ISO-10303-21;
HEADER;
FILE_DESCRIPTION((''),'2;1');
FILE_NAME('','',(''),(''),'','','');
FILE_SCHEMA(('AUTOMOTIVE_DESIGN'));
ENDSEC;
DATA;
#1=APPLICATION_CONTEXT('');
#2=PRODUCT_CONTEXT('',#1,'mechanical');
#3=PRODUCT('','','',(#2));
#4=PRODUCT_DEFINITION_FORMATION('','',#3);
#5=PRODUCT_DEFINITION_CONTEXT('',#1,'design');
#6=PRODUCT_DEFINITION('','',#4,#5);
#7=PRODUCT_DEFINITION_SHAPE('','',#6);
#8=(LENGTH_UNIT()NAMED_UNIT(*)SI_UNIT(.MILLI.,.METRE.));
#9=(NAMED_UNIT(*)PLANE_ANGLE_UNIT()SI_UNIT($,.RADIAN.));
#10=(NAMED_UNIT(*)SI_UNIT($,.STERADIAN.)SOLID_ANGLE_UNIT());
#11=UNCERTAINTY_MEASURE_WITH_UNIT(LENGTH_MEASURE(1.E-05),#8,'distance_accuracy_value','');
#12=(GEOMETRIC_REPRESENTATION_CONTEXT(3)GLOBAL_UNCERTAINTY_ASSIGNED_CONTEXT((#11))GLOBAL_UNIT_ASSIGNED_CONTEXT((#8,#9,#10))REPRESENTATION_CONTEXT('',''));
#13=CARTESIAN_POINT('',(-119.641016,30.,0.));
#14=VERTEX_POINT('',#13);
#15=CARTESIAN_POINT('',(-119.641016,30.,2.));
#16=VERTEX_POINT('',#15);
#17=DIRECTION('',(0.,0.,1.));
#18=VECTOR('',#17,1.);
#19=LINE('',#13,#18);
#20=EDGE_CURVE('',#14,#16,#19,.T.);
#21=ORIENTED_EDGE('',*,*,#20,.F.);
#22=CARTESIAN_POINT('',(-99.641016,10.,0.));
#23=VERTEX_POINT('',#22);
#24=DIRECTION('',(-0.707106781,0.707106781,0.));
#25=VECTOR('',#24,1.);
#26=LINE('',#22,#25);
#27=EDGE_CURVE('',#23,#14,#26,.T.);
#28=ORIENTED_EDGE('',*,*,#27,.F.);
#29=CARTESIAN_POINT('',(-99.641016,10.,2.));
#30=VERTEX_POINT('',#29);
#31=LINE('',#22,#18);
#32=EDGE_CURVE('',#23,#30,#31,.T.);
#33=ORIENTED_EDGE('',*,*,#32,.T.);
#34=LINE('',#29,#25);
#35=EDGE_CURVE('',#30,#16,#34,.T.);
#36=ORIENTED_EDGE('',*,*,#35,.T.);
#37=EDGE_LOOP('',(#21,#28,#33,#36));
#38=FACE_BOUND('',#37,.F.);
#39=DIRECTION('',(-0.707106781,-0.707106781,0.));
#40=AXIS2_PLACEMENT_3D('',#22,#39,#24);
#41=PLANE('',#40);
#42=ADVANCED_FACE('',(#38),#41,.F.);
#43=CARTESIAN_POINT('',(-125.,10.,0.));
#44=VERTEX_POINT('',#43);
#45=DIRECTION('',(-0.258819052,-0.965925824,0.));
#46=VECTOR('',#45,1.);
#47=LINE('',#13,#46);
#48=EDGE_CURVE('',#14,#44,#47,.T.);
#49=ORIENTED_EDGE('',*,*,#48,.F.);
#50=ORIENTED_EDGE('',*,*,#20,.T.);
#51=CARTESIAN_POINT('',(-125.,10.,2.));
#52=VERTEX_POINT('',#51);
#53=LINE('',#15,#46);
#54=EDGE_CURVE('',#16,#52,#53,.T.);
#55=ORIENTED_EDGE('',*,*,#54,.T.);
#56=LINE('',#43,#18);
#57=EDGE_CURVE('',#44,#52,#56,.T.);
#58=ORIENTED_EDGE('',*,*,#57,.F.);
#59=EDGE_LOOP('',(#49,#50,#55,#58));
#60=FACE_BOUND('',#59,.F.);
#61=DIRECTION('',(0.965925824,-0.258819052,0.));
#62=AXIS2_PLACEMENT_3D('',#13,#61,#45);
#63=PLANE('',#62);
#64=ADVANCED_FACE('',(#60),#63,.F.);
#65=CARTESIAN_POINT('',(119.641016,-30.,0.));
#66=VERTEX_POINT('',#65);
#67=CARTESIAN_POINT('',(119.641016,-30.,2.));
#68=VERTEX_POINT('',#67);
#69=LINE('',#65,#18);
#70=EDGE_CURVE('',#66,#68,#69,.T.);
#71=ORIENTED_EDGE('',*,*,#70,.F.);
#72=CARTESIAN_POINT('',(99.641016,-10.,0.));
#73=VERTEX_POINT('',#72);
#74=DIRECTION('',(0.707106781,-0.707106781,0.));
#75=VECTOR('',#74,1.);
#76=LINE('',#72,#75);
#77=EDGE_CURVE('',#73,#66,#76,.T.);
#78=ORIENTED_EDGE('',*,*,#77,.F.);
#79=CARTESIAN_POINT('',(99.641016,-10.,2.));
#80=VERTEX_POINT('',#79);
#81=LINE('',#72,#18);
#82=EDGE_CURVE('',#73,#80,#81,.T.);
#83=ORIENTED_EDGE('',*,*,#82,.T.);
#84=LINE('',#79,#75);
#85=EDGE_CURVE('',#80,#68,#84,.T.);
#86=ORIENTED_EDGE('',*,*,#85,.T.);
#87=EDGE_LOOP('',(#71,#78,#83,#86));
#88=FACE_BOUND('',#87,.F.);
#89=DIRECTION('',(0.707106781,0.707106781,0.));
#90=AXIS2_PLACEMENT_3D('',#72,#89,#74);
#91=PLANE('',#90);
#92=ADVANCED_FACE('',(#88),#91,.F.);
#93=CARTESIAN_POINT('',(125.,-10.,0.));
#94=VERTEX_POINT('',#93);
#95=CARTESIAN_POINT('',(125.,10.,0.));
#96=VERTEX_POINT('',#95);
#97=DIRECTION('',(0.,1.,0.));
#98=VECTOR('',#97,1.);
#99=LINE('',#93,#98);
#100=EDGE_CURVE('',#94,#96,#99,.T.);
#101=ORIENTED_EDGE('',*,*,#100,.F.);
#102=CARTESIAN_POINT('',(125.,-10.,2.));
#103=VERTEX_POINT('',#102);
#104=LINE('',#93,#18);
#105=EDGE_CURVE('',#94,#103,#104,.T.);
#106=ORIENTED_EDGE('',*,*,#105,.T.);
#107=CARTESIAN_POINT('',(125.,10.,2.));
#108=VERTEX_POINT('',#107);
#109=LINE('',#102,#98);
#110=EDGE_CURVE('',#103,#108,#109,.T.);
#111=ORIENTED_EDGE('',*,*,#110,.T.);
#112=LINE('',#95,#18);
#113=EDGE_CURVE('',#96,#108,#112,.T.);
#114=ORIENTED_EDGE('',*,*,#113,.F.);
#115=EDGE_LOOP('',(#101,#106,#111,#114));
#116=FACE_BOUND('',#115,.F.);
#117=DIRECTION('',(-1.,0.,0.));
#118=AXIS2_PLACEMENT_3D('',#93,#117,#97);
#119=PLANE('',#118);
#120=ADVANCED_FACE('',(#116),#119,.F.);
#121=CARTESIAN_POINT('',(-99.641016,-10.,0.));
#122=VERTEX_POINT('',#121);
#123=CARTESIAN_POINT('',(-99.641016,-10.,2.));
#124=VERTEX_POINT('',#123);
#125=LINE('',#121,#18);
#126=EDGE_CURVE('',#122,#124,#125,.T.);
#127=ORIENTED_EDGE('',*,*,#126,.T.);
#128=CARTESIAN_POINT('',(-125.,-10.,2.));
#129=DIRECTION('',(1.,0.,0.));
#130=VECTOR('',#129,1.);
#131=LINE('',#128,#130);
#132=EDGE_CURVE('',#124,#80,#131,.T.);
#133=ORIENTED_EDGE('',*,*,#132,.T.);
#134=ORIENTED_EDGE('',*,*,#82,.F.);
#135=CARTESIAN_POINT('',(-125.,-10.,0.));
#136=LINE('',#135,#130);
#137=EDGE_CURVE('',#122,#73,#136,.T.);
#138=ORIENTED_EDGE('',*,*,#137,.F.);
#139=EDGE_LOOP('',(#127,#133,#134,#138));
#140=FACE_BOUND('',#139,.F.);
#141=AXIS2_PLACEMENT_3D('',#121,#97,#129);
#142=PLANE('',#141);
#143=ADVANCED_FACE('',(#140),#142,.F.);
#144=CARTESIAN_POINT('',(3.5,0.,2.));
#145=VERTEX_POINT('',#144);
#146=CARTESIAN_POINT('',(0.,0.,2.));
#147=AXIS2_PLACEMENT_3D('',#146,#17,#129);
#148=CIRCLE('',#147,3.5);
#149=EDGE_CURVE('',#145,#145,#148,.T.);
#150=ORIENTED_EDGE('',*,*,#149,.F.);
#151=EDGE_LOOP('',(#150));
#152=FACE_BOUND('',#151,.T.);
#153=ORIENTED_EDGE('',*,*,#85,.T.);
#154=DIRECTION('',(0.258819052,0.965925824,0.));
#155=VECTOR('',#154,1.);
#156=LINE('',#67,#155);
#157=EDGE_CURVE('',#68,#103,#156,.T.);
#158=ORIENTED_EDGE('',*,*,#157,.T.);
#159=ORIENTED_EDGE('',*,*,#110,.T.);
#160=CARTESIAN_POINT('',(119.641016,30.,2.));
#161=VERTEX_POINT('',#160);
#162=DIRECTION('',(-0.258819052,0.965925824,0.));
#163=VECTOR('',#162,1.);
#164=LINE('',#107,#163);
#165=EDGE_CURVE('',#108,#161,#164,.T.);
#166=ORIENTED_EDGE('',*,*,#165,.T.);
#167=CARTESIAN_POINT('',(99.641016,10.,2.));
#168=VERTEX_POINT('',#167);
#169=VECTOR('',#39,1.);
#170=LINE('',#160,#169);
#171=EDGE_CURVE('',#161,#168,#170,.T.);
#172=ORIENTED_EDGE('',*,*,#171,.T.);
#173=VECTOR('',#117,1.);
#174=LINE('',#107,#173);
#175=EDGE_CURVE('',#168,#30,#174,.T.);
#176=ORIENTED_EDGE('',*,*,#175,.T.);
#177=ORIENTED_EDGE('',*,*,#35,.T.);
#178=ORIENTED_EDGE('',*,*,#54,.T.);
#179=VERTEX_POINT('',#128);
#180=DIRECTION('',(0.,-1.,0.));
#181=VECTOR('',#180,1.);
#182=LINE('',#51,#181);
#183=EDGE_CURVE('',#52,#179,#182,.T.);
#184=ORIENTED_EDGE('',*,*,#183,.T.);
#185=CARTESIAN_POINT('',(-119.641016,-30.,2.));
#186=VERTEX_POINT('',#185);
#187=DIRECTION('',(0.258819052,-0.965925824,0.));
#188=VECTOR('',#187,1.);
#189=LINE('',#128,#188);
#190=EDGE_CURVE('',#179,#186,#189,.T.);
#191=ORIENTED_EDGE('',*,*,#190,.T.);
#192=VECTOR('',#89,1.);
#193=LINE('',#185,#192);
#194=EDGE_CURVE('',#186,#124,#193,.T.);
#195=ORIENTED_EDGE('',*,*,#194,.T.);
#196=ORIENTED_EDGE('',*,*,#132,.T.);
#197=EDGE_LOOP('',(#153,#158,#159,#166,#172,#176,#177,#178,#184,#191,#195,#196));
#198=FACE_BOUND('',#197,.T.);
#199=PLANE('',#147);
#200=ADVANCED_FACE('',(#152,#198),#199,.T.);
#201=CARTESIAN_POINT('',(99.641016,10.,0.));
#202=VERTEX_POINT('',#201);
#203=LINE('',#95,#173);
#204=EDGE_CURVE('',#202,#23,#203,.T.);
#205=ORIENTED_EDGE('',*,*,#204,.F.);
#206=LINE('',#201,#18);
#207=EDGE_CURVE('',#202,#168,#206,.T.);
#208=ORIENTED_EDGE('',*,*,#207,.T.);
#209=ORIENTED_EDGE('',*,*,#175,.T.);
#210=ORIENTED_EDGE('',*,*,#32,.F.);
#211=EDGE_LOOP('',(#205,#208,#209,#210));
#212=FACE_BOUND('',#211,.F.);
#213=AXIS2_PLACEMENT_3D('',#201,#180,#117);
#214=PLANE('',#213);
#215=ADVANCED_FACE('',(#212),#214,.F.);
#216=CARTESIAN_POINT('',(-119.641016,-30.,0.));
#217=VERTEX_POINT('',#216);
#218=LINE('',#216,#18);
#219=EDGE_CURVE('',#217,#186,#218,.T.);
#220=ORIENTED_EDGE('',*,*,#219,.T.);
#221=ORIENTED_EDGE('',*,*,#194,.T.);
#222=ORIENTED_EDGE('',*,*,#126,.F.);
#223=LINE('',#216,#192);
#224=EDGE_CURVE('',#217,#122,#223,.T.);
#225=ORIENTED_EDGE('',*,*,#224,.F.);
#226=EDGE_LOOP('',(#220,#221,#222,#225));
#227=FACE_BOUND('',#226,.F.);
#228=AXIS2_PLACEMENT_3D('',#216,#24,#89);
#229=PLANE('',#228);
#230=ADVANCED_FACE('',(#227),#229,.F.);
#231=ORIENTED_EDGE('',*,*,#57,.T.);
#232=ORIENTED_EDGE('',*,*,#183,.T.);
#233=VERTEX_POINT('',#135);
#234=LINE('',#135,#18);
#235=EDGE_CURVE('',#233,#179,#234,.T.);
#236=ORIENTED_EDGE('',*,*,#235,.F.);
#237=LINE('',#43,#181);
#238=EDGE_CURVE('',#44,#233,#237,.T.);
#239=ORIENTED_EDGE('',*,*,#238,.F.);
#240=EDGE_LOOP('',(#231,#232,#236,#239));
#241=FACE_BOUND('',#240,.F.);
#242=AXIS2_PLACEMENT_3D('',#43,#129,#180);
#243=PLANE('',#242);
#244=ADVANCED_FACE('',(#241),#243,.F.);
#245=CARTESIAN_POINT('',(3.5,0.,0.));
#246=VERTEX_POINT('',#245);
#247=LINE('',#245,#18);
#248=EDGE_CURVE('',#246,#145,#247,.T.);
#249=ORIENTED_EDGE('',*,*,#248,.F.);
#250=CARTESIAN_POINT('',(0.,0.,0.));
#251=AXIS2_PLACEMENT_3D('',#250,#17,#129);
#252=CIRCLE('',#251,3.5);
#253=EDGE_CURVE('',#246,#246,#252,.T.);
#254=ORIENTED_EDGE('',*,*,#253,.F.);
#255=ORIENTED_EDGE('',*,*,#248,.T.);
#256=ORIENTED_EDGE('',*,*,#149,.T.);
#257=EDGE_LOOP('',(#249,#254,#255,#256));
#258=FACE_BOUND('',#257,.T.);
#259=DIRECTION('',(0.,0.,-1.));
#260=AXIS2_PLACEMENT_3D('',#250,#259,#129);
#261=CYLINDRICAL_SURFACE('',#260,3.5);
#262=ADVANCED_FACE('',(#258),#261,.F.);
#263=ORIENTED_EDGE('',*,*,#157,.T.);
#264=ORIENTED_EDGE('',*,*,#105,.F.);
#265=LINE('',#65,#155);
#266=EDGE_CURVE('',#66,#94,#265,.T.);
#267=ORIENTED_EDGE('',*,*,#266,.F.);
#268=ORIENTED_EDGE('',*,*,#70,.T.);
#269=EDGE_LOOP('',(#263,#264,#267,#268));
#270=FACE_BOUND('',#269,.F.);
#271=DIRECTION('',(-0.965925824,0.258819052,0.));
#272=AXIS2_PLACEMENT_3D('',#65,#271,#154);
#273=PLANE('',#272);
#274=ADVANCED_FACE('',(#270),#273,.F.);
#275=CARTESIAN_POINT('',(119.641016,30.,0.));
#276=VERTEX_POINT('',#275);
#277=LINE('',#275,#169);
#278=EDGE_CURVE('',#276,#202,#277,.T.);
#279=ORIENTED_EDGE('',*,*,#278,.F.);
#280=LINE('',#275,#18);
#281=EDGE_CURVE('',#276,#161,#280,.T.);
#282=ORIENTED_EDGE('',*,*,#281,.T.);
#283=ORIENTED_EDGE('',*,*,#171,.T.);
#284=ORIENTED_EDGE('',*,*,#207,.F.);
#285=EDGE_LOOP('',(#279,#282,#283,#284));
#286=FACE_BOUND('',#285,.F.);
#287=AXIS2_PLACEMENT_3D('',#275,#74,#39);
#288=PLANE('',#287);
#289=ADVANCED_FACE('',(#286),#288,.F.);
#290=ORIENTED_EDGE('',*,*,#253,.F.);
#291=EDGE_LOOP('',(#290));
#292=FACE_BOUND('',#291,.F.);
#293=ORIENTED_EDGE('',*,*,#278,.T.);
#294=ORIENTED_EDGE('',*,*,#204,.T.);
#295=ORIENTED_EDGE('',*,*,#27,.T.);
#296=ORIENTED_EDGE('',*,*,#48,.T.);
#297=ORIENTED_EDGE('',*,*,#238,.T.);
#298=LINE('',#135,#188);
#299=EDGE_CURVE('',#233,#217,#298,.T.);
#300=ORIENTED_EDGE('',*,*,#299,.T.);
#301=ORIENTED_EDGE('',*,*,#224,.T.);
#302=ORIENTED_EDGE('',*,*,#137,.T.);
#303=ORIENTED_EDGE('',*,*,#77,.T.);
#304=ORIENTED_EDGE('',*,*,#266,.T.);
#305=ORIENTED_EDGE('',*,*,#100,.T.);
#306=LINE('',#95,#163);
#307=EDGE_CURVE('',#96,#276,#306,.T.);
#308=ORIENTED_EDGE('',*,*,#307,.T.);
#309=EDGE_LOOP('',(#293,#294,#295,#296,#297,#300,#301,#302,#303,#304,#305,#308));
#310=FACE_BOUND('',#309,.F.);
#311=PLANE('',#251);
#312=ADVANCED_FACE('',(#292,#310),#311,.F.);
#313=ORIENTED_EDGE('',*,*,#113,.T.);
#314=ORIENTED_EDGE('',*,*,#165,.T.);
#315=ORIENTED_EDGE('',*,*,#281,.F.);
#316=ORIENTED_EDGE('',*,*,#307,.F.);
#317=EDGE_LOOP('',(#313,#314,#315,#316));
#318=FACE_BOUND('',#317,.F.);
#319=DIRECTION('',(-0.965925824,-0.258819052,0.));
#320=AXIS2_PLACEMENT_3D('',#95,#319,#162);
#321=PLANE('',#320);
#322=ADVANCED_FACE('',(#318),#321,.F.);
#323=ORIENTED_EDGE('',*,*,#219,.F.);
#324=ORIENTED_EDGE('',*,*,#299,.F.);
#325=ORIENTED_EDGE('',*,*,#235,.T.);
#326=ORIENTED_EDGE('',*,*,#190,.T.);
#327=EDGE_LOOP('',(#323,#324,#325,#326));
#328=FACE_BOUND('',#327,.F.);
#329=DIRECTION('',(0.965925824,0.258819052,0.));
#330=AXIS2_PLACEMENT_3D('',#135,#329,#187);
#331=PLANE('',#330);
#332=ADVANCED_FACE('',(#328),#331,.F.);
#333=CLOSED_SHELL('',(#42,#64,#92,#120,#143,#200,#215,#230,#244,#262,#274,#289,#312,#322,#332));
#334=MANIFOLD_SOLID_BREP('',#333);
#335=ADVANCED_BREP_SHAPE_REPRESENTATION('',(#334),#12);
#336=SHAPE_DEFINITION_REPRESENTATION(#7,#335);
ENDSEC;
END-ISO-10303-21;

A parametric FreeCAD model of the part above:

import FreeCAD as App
import Part
import Sketcher
from FreeCAD import Vector
Q = App.Units.Quantity

doc = App.newDocument("Part")
body = doc.addObject("PartDesign::Body", "Body")

sketch1 = body.newObject("Sketcher::SketchObject", "Sketch")
sketch1.AttachmentSupport = (doc.getObject("XY_Plane"), [""])
sketch1.MapMode = "FlatFace"
sketch1.addGeometry([
    Part.LineSegment(Vector(125, -10, 0), Vector(125, 10, 0)),
    Part.LineSegment(Vector(125, 10, 0), Vector(119.6, 30, 0)),
    Part.LineSegment(Vector(119.6, 30, 0), Vector(99.6, 10, 0)),
    Part.LineSegment(Vector(99.6, 10, 0), Vector(-99.6, 10, 0)),
    Part.LineSegment(Vector(-99.6, 10, 0), Vector(-119.6, 30, 0)),
    Part.LineSegment(Vector(-119.6, 30, 0), Vector(-125, 10, 0)),
    Part.LineSegment(Vector(-125, 10, 0), Vector(-125, -10, 0)),
    Part.LineSegment(Vector(-125, -10, 0), Vector(-119.6, -30, 0)),
    Part.LineSegment(Vector(-119.6, -30, 0), Vector(-99.6, -10, 0)),
    Part.LineSegment(Vector(-99.6, -10, 0), Vector(99.6, -10, 0)),
    Part.LineSegment(Vector(99.6, -10, 0), Vector(119.6, -30, 0)),
    Part.LineSegment(Vector(119.6, -30, 0), Vector(125, -10, 0)),
    Part.Circle(Vector(0, 0, 0), Vector(0, 0, 1), 3.5),
], False)
sketch1.addConstraint([
    Sketcher.Constraint("Coincident", 0, 2, 1, 1),
    Sketcher.Constraint("Coincident", 1, 2, 2, 1),
    Sketcher.Constraint("Coincident", 2, 2, 3, 1),
    Sketcher.Constraint("Coincident", 3, 2, 4, 1),
    Sketcher.Constraint("Coincident", 4, 2, 5, 1),
    Sketcher.Constraint("Coincident", 5, 2, 6, 1),
    Sketcher.Constraint("Coincident", 6, 2, 7, 1),
    Sketcher.Constraint("Coincident", 7, 2, 8, 1),
    Sketcher.Constraint("Coincident", 8, 2, 9, 1),
    Sketcher.Constraint("Coincident", 9, 2, 10, 1),
    Sketcher.Constraint("Coincident", 10, 2, 11, 1),
    Sketcher.Constraint("Coincident", 11, 2, 0, 1),
    Sketcher.Constraint("Vertical", 0),
    Sketcher.Constraint("Horizontal", 3),
    Sketcher.Constraint("Vertical", 6),
    Sketcher.Constraint("Horizontal", 9),
    Sketcher.Constraint("Coincident", 12, 3, -1, 1),
    Sketcher.Constraint("Symmetric", 0, 2, 6, 2, -1, 1),
    Sketcher.Constraint("Symmetric", 1, 2, 7, 2, -1, 1),
    Sketcher.Constraint("Symmetric", 2, 2, 8, 2, -1, 1),
    Sketcher.Constraint("Symmetric", 4, 2, 10, 2, -1, 1),
    Sketcher.Constraint("Symmetric", 1, 2, 4, 2, -2),
    Sketcher.Constraint("Perpendicular", 2, 4),
    Sketcher.Constraint("Perpendicular", 8, 10),
    Sketcher.Constraint("Parallel", 5, 11),
    Sketcher.Constraint("Horizontal", 0, 2, 2, 2),
    Sketcher.Constraint("Horizontal", 3, 2, 5, 2),
    Sketcher.Constraint("Vertical", 3, 2, 8, 2),
    Sketcher.Constraint("Diameter", 12, Q("7 mm")),
    Sketcher.Constraint("DistanceY", 0, 1, 0, 2, Q("20 mm")),
    Sketcher.Constraint("Angle", 1, Q("105 deg")),
    Sketcher.Constraint("DistanceX", -1, 1, 0, 2, Q("125 mm")),
    Sketcher.Constraint("DistanceY", -1, 1, 1, 2, Q("30 mm")),
])
pad1 = body.newObject("PartDesign::Pad", "Pad")
pad1.Profile = sketch1
pad1.Length = 2

doc.recompute()
